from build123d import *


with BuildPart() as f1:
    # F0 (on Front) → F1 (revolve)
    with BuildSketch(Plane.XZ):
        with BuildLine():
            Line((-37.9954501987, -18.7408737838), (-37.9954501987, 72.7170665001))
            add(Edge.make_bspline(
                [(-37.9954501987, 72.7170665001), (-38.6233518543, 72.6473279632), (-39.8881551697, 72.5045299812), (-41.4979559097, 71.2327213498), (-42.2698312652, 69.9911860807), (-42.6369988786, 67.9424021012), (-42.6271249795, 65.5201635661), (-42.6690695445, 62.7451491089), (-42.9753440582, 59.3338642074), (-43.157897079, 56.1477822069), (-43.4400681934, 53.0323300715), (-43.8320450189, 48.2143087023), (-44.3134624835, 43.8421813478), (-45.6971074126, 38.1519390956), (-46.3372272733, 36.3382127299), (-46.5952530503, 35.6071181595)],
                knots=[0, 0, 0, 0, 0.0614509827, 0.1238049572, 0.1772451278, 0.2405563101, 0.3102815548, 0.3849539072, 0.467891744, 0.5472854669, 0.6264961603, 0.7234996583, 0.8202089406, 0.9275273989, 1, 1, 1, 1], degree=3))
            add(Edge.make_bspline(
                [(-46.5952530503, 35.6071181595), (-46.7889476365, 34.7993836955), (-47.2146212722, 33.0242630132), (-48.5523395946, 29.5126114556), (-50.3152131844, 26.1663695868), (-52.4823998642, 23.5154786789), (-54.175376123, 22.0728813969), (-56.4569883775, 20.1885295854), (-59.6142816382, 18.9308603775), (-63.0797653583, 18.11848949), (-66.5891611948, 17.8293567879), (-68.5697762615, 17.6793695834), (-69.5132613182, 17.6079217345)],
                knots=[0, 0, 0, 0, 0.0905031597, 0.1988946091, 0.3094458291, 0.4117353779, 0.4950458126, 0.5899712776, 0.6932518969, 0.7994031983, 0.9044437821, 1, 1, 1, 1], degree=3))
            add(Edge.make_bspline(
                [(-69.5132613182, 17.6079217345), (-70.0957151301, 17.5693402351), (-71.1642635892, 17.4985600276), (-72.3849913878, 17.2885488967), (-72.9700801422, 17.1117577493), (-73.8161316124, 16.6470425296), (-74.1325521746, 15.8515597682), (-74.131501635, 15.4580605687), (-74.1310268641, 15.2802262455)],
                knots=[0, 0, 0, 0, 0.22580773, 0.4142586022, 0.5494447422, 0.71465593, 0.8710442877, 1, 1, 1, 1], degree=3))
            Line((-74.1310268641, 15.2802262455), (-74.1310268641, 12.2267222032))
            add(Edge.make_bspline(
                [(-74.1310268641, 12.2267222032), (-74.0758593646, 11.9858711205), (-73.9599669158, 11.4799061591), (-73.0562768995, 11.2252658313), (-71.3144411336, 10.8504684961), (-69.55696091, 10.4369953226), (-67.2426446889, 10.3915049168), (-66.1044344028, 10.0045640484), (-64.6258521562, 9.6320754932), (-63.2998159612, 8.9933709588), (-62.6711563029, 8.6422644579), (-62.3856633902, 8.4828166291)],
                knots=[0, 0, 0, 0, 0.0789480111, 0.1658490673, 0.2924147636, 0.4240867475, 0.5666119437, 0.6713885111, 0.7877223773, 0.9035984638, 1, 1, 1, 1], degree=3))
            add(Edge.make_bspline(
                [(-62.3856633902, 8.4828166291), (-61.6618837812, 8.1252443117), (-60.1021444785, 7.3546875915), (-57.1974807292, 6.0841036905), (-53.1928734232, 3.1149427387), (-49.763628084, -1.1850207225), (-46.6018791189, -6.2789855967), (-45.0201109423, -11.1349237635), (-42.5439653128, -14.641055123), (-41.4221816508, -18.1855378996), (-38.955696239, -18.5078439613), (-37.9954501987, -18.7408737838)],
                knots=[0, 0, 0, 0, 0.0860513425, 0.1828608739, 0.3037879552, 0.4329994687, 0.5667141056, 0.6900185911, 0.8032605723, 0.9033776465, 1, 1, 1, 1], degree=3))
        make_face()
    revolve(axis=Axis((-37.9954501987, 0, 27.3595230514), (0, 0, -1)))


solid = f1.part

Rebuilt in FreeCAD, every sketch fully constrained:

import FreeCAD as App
import Part
import Sketcher

doc = App.newDocument("Part")
body = doc.addObject("PartDesign::Body", "Body")

# Sketch on XZ plane
sketch1 = body.newObject("Sketcher::SketchObject", "Sketch")
sketch1.AttachmentSupport = (doc.getObject("XZ_Plane"), [""])
sketch1.MapMode = "FlatFace"
sketch1.addGeometry([
    Part.LineSegment(App.Vector(-37.99545, -18.740874, 0), App.Vector(-37.99545, 72.717067, 0)),  # 0
    Part.BSplineCurve([App.Vector(-37.99545, 72.717067, 0), App.Vector(-38.623352, 72.647328, 0), App.Vector(-39.888155, 72.50453, 0), App.Vector(-41.497956, 71.232721, 0), App.Vector(-42.269831, 69.991186, 0), App.Vector(-42.636999, 67.942402, 0), App.Vector(-42.627125, 65.520164, 0), App.Vector(-42.66907, 62.745149, 0), App.Vector(-42.975344, 59.333864, 0), App.Vector(-43.157897, 56.147782, 0), App.Vector(-43.440068, 53.03233, 0), App.Vector(-43.832045, 48.214309, 0), App.Vector(-44.313462, 43.842181, 0), App.Vector(-45.697107, 38.151939, 0), App.Vector(-46.337227, 36.338213, 0), App.Vector(-46.595253, 35.607118, 0)], [4, 1, 1, 1, 1, 1, 1, 1, 1, 1, 1, 1, 1, 4], [0, 0.061450983, 0.123804957, 0.177245128, 0.24055631, 0.310281555, 0.384953907, 0.467891744, 0.547285467, 0.62649616, 0.723499658, 0.820208941, 0.927527399, 1], False, 3, [1, 1, 1, 1, 1, 1, 1, 1, 1, 1, 1, 1, 1, 1, 1, 1], False),  # 1
    Part.BSplineCurve([App.Vector(-46.595253, 35.607118, 0), App.Vector(-46.788948, 34.799384, 0), App.Vector(-47.214621, 33.024263, 0), App.Vector(-48.55234, 29.512611, 0), App.Vector(-50.315213, 26.16637, 0), App.Vector(-52.4824, 23.515479, 0), App.Vector(-54.175376, 22.072881, 0), App.Vector(-56.456988, 20.18853, 0), App.Vector(-59.614282, 18.93086, 0), App.Vector(-63.079765, 18.118489, 0), App.Vector(-66.589161, 17.829357, 0), App.Vector(-68.569776, 17.67937, 0), App.Vector(-69.513261, 17.607922, 0)], [4, 1, 1, 1, 1, 1, 1, 1, 1, 1, 4], [0, 0.09050316, 0.198894609, 0.309445829, 0.411735378, 0.495045813, 0.589971278, 0.693251897, 0.799403198, 0.904443782, 1], False, 3, [1, 1, 1, 1, 1, 1, 1, 1, 1, 1, 1, 1, 1], False),  # 2
    Part.BSplineCurve([App.Vector(-69.513261, 17.607922, 0), App.Vector(-70.095715, 17.56934, 0), App.Vector(-71.164264, 17.49856, 0), App.Vector(-72.384991, 17.288549, 0), App.Vector(-72.97008, 17.111758, 0), App.Vector(-73.816132, 16.647043, 0), App.Vector(-74.132552, 15.85156, 0), App.Vector(-74.131502, 15.458061, 0), App.Vector(-74.131027, 15.280226, 0)], [4, 1, 1, 1, 1, 1, 4], [0, 0.22580773, 0.414258602, 0.549444742, 0.71465593, 0.871044288, 1], False, 3, [1, 1, 1, 1, 1, 1, 1, 1, 1], False),  # 3
    Part.LineSegment(App.Vector(-74.131027, 15.280226, 0), App.Vector(-74.131027, 12.226722, 0)),  # 4
    Part.BSplineCurve([App.Vector(-74.131027, 12.226722, 0), App.Vector(-74.075859, 11.985871, 0), App.Vector(-73.959967, 11.479906, 0), App.Vector(-73.056277, 11.225266, 0), App.Vector(-71.314441, 10.850468, 0), App.Vector(-69.556961, 10.436995, 0), App.Vector(-67.242645, 10.391505, 0), App.Vector(-66.104434, 10.004564, 0), App.Vector(-64.625852, 9.632075, 0), App.Vector(-63.299816, 8.993371, 0), App.Vector(-62.671156, 8.642264, 0), App.Vector(-62.385663, 8.482817, 0)], [4, 1, 1, 1, 1, 1, 1, 1, 1, 4], [0, 0.078948011, 0.165849067, 0.292414764, 0.424086748, 0.566611944, 0.671388511, 0.787722377, 0.903598464, 1], False, 3, [1, 1, 1, 1, 1, 1, 1, 1, 1, 1, 1, 1], False),  # 5
    Part.BSplineCurve([App.Vector(-62.385663, 8.482817, 0), App.Vector(-61.661884, 8.125244, 0), App.Vector(-60.102144, 7.354688, 0), App.Vector(-57.197481, 6.084104, 0), App.Vector(-53.192873, 3.114943, 0), App.Vector(-49.763628, -1.185021, 0), App.Vector(-46.601879, -6.278986, 0), App.Vector(-45.020111, -11.134924, 0), App.Vector(-42.543965, -14.641055, 0), App.Vector(-41.422182, -18.185538, 0), App.Vector(-38.955696, -18.507844, 0), App.Vector(-37.99545, -18.740874, 0)], [4, 1, 1, 1, 1, 1, 1, 1, 1, 4], [0, 0.086051343, 0.182860874, 0.303787955, 0.432999469, 0.566714106, 0.690018591, 0.803260572, 0.903377646, 1], False, 3, [1, 1, 1, 1, 1, 1, 1, 1, 1, 1, 1, 1], False),  # 6
], False)
sketch1.addGeometry(Part.LineSegment(App.Vector(-37.99545, 72.717067, 0), App.Vector(-37.99545, -18.740874, 0)), True)  # axis
sketch1.addConstraint([
    Sketcher.Constraint("Block", 1),
    Sketcher.Constraint("Block", 2),
    Sketcher.Constraint("Block", 3),
    Sketcher.Constraint("Block", 5),
    Sketcher.Constraint("Block", 6),
    Sketcher.Constraint("Coincident", 0, 2, 1, 1),
    Sketcher.Constraint("Coincident", 3, 2, 4, 1),
    Sketcher.Constraint("Coincident", 4, 2, 5, 1),
    Sketcher.Constraint("Coincident", 6, 2, 0, 1),
    Sketcher.Constraint("Vertical", 7),
    Sketcher.Constraint("Coincident", 7, 1, 0, 2),
    Sketcher.Constraint("Equal", 0, 7),
])
revolution = body.newObject("PartDesign::Revolution", "Revolution")
revolution.Profile = sketch1
revolution.ReferenceAxis = (sketch1, ["Axis0"])
revolution.Angle = 360

doc.recompute()
